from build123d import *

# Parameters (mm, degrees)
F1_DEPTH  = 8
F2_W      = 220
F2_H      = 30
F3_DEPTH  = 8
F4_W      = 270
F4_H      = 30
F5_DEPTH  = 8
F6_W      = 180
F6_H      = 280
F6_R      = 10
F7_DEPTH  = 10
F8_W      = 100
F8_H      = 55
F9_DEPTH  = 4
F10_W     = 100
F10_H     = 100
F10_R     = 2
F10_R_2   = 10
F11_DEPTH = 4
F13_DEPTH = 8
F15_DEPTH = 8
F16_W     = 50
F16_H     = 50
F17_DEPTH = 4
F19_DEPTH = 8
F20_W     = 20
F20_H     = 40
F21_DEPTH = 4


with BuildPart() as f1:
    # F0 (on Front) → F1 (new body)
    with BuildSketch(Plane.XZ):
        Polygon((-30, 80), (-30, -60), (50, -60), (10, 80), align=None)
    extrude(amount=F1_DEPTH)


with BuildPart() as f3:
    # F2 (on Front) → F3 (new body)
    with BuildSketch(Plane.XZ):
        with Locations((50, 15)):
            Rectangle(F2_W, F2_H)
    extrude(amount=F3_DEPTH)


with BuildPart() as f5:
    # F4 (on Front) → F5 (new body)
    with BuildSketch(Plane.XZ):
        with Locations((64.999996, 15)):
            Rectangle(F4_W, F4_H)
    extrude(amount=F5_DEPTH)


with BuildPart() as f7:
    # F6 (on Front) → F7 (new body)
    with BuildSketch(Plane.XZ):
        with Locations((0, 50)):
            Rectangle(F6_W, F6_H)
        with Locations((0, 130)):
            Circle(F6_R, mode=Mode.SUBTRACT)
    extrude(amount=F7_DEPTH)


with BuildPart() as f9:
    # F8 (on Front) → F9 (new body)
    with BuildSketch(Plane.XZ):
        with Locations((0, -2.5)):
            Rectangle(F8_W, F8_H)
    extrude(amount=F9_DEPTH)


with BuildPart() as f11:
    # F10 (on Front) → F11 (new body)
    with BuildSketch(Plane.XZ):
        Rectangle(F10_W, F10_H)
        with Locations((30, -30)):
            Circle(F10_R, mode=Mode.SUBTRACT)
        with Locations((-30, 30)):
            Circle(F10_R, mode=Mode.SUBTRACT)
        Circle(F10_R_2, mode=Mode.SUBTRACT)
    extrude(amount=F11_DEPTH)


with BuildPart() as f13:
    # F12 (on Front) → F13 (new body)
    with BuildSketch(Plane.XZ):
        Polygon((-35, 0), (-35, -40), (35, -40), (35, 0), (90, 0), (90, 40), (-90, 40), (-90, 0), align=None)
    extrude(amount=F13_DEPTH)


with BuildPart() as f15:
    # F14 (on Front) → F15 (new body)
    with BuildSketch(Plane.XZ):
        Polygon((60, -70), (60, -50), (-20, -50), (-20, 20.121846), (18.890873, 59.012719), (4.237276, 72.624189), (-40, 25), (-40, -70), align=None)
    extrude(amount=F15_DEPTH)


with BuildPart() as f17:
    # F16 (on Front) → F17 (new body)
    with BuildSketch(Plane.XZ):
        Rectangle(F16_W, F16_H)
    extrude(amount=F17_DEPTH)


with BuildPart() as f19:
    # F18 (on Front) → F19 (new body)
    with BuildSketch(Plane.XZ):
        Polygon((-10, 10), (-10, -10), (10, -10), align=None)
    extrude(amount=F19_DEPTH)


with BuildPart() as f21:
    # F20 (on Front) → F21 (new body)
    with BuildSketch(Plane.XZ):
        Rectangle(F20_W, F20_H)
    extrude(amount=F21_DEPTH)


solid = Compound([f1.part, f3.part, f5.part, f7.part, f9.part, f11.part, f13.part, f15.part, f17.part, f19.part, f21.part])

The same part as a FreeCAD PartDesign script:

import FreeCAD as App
import Part
import Sketcher

V = App.Vector
Q = App.Units.Quantity


def add_polygon(sketch, points):
    """Adds a closed chain of lines whose ends are joined by coincident constraints."""
    first, n = sketch.GeometryCount, len(points)
    for a, b in zip(points, points[1:] + points[:1]):
        sketch.addGeometry(Part.LineSegment(App.Vector(*a, 0), App.Vector(*b, 0)), False)
    for i in range(n):
        sketch.addConstraint(Sketcher.Constraint("Coincident", first + i, 2, first + (i + 1) % n, 1))

doc = App.newDocument("Part")
body = doc.addObject("PartDesign::Body", "Body")

# Sketch on XZ plane
sketch1 = body.newObject("Sketcher::SketchObject", "Sketch")
sketch1.AttachmentSupport = (doc.getObject("XZ_Plane"), [""])
sketch1.MapMode = "FlatFace"
add_polygon(sketch1, [(-30, 80), (-30, -60), (50, -60), (10, 80)])  # lines 0-3
sketch1.addConstraint(Sketcher.Constraint("Vertical", 0))
sketch1.addConstraint(Sketcher.Constraint("Horizontal", 1))
sketch1.addConstraint(Sketcher.Constraint("Horizontal", 3))
sketch1.addConstraint(Sketcher.Constraint("DistanceX", 1, 1, 1, 2, Q("80 mm")))
sketch1.addConstraint(Sketcher.Constraint("DistanceX", 3, 2, 3, 1, Q("40 mm")))
sketch1.addConstraint(Sketcher.Constraint("DistanceY", 0, 2, 0, 1, Q("140 mm")))
sketch1.addConstraint(Sketcher.Constraint("DistanceX", 0, 2, -1, 1, Q("30 mm")))
sketch1.addConstraint(Sketcher.Constraint("DistanceY", 0, 2, -1, 1, Q("60 mm")))
pad1 = body.newObject("PartDesign::Pad", "Pad")
pad1.Profile = sketch1
pad1.Length = 8
body2 = doc.addObject("PartDesign::Body", "Body001")

# Sketch on XZ plane
sketch2 = body2.newObject("Sketcher::SketchObject", "Sketch001")
sketch2.AttachmentSupport = (doc.getObject("XZ_Plane001"), [""])
sketch2.MapMode = "FlatFace"
add_polygon(sketch2, [(-60, 30), (-60, 0), (160, 0), (160, 30)])  # lines 0-3
sketch2.addConstraint(Sketcher.Constraint("Vertical", 0))
sketch2.addConstraint(Sketcher.Constraint("Horizontal", 1))
sketch2.addConstraint(Sketcher.Constraint("Vertical", 2))
sketch2.addConstraint(Sketcher.Constraint("Horizontal", 3))
sketch2.addConstraint(Sketcher.Constraint("PointOnObject", 0, 2, -1))
sketch2.addConstraint(Sketcher.Constraint("DistanceX", 1, 1, 1, 2, Q("220 mm")))
sketch2.addConstraint(Sketcher.Constraint("DistanceY", 0, 2, 0, 1, Q("30 mm")))
sketch2.addConstraint(Sketcher.Constraint("DistanceX", 0, 2, -1, 1, Q("60 mm")))
pad2 = body2.newObject("PartDesign::Pad", "Pad001")
pad2.Profile = sketch2
pad2.Length = 8
body3 = doc.addObject("PartDesign::Body", "Body002")

# Sketch on XZ plane
sketch3 = body3.newObject("Sketcher::SketchObject", "Sketch002")
sketch3.AttachmentSupport = (doc.getObject("XZ_Plane002"), [""])
sketch3.MapMode = "FlatFace"
add_polygon(sketch3, [(-70.000004, 30), (-70.000004, 0), (199.999996, 0), (199.999996, 30)])  # lines 0-3
sketch3.addConstraint(Sketcher.Constraint("Vertical", 0))
sketch3.addConstraint(Sketcher.Constraint("Horizontal", 1))
sketch3.addConstraint(Sketcher.Constraint("Vertical", 2))
sketch3.addConstraint(Sketcher.Constraint("Horizontal", 3))
sketch3.addConstraint(Sketcher.Constraint("PointOnObject", 0, 2, -1))
sketch3.addConstraint(Sketcher.Constraint("DistanceX", 1, 1, 1, 2, Q("270 mm")))
sketch3.addConstraint(Sketcher.Constraint("DistanceY", 0, 2, 0, 1, Q("30 mm")))
sketch3.addConstraint(Sketcher.Constraint("DistanceX", 0, 2, -1, 1, Q("70.000004 mm")))
pad3 = body3.newObject("PartDesign::Pad", "Pad002")
pad3.Profile = sketch3
pad3.Length = 8
body4 = doc.addObject("PartDesign::Body", "Body003")

# Sketch on XZ plane
sketch4 = body4.newObject("Sketcher::SketchObject", "Sketch003")
sketch4.AttachmentSupport = (doc.getObject("XZ_Plane003"), [""])
sketch4.MapMode = "FlatFace"
add_polygon(sketch4, [(-90, 190), (-90, -90), (90, -90), (90, 190)])  # lines 0-3
sketch4.addGeometry(Part.Circle(V(0, 130, 0), V(0, 0, 1), 10), False)  # 4
sketch4.addConstraint(Sketcher.Constraint("Vertical", 0))
sketch4.addConstraint(Sketcher.Constraint("Horizontal", 1))
sketch4.addConstraint(Sketcher.Constraint("Vertical", 2))
sketch4.addConstraint(Sketcher.Constraint("Horizontal", 3))
sketch4.addConstraint(Sketcher.Constraint("PointOnObject", 4, 3, -2))
sketch4.addConstraint(Sketcher.Constraint("Diameter", 4, Q("20 mm")))
sketch4.addConstraint(Sketcher.Constraint("DistanceX", 1, 1, 1, 2, Q("180 mm")))
sketch4.addConstraint(Sketcher.Constraint("DistanceY", 0, 2, 0, 1, Q("280 mm")))
sketch4.addConstraint(Sketcher.Constraint("DistanceY", -1, 1, 4, 3, Q("130 mm")))
sketch4.addConstraint(Sketcher.Constraint("DistanceX", 0, 2, -1, 1, Q("90 mm")))
sketch4.addConstraint(Sketcher.Constraint("DistanceY", 0, 2, -1, 1, Q("90 mm")))
pad4 = body4.newObject("PartDesign::Pad", "Pad003")
pad4.Profile = sketch4
pad4.Length = 10
body5 = doc.addObject("PartDesign::Body", "Body004")

# Sketch on XZ plane
sketch5 = body5.newObject("Sketcher::SketchObject", "Sketch004")
sketch5.AttachmentSupport = (doc.getObject("XZ_Plane004"), [""])
sketch5.MapMode = "FlatFace"
add_polygon(sketch5, [(-50, 25), (-50, -30), (50, -30), (50, 25)])  # lines 0-3
sketch5.addConstraint(Sketcher.Constraint("Vertical", 0))
sketch5.addConstraint(Sketcher.Constraint("Horizontal", 1))
sketch5.addConstraint(Sketcher.Constraint("Vertical", 2))
sketch5.addConstraint(Sketcher.Constraint("Horizontal", 3))
sketch5.addConstraint(Sketcher.Constraint("DistanceX", 1, 1, 1, 2, Q("100 mm")))
sketch5.addConstraint(Sketcher.Constraint("DistanceY", 0, 2, 0, 1, Q("55 mm")))
sketch5.addConstraint(Sketcher.Constraint("DistanceX", 0, 2, -1, 1, Q("50 mm")))
sketch5.addConstraint(Sketcher.Constraint("DistanceY", 0, 2, -1, 1, Q("30 mm")))
pad5 = body5.newObject("PartDesign::Pad", "Pad004")
pad5.Profile = sketch5
pad5.Length = 4
body6 = doc.addObject("PartDesign::Body", "Body005")

# Sketch on XZ plane
sketch6 = body6.newObject("Sketcher::SketchObject", "Sketch005")
sketch6.AttachmentSupport = (doc.getObject("XZ_Plane005"), [""])
sketch6.MapMode = "FlatFace"
add_polygon(sketch6, [(-50, 50), (-50, -50), (50, -50), (50, 50)])  # lines 0-3
sketch6.addGeometry(Part.Circle(V(30, -30, 0), V(0, 0, 1), 2), False)  # 4
sketch6.addGeometry(Part.Circle(V(-30, 30, 0), V(0, 0, 1), 2), False)  # 5
sketch6.addGeometry(Part.Circle(V(0, 0, 0), V(0, 0, 1), 10), False)  # 6
sketch6.addConstraint(Sketcher.Constraint("Vertical", 0))
sketch6.addConstraint(Sketcher.Constraint("Horizontal", 1))
sketch6.addConstraint(Sketcher.Constraint("Vertical", 2))
sketch6.addConstraint(Sketcher.Constraint("Horizontal", 3))
sketch6.addConstraint(Sketcher.Constraint("Coincident", 6, 3, -1, 1))
sketch6.addConstraint(Sketcher.Constraint("Equal", 4, 5))
sketch6.addConstraint(Sketcher.Constraint("Symmetric", 4, 3, 5, 3, -1, 1))
sketch6.addConstraint(Sketcher.Constraint("Symmetric", 0, 2, 2, 2, -1, 1))
sketch6.addConstraint(Sketcher.Constraint("Equal", 3, 0))
sketch6.addConstraint(Sketcher.Constraint("Diameter", 4, Q("4 mm")))
sketch6.addConstraint(Sketcher.Constraint("Diameter", 6, Q("20 mm")))
sketch6.addConstraint(Sketcher.Constraint("DistanceX", 1, 1, 1, 2, Q("100 mm")))
sketch6.addConstraint(Sketcher.Constraint("DistanceX", -1, 1, 4, 3, Q("30 mm")))
sketch6.addConstraint(Sketcher.Constraint("DistanceY", 4, 3, -1, 1, Q("30 mm")))
pad6 = body6.newObject("PartDesign::Pad", "Pad005")
pad6.Profile = sketch6
pad6.Length = 4
body7 = doc.addObject("PartDesign::Body", "Body006")

# Sketch on XZ plane
sketch7 = body7.newObject("Sketcher::SketchObject", "Sketch006")
sketch7.AttachmentSupport = (doc.getObject("XZ_Plane006"), [""])
sketch7.MapMode = "FlatFace"
add_polygon(sketch7, [(-35, 0), (-35, -40), (35, -40), (35, 0), (90, 0), (90, 40), (-90, 40), (-90, 0)])  # lines 0-7
sketch7.addConstraint(Sketcher.Constraint("Vertical", 0))
sketch7.addConstraint(Sketcher.Constraint("Horizontal", 1))
sketch7.addConstraint(Sketcher.Constraint("Vertical", 2))
sketch7.addConstraint(Sketcher.Constraint("Horizontal", 3))
sketch7.addConstraint(Sketcher.Constraint("Vertical", 4))
sketch7.addConstraint(Sketcher.Constraint("Horizontal", 5))
sketch7.addConstraint(Sketcher.Constraint("Vertical", 6))
sketch7.addConstraint(Sketcher.Constraint("Horizontal", 7))
sketch7.addConstraint(Sketcher.Constraint("Symmetric", 3, 2, 6, 2, -1, 1))
sketch7.addConstraint(Sketcher.Constraint("Symmetric", 2, 2, 7, 2, -2))
sketch7.addConstraint(Sketcher.Constraint("Equal", 2, 4))
sketch7.addConstraint(Sketcher.Constraint("DistanceX", 1, 1, 1, 2, Q("70 mm")))
sketch7.addConstraint(Sketcher.Constraint("DistanceX", 3, 1, 3, 2, Q("55 mm")))
sketch7.addConstraint(Sketcher.Constraint("DistanceY", 0, 2, 0, 1, Q("40 mm")))
pad7 = body7.newObject("PartDesign::Pad", "Pad006")
pad7.Profile = sketch7
pad7.Length = 8
body8 = doc.addObject("PartDesign::Body", "Body007")

# Sketch on XZ plane
sketch8 = body8.newObject("Sketcher::SketchObject", "Sketch007")
sketch8.AttachmentSupport = (doc.getObject("XZ_Plane007"), [""])
sketch8.MapMode = "FlatFace"
add_polygon(sketch8, [(60, -70), (60, -50), (-20, -50), (-20, 20.121846), (18.890873, 59.012719), (4.237276, 72.624189), (-40, 25), (-40, -70)])  # lines 0-7
sketch8.addConstraint(Sketcher.Constraint("Vertical", 0))
sketch8.addConstraint(Sketcher.Constraint("Horizontal", 1))
sketch8.addConstraint(Sketcher.Constraint("Vertical", 2))
sketch8.addConstraint(Sketcher.Constraint("Vertical", 6))
sketch8.addConstraint(Sketcher.Constraint("Horizontal", 7))
sketch8.addConstraint(Sketcher.Constraint("Perpendicular", 4, 5))
sketch8.addConstraint(Sketcher.Constraint("DistanceX", 1, 2, 1, 1, Q("80 mm")))
sketch8.addConstraint(Sketcher.Constraint("DistanceX", 7, 1, 7, 2, Q("100 mm")))
sketch8.addConstraint(Sketcher.Constraint("DistanceY", 0, 1, 0, 2, Q("20 mm")))
sketch8.addConstraint(Sketcher.Constraint("DistanceY", 6, 2, 6, 1, Q("95 mm")))
sketch8.addConstraint(Sketcher.Constraint("Angle", 3, Q("45 deg")))
sketch8.addConstraint(Sketcher.Constraint("Distance", 3, Q("55 mm")))
sketch8.addConstraint(Sketcher.Constraint("Distance", 4, Q("20.000001 mm")))
sketch8.addConstraint(Sketcher.Constraint("Distance", 5, Q("65 mm")))
sketch8.addConstraint(Sketcher.Constraint("DistanceX", -1, 1, 0, 2, Q("60 mm")))
sketch8.addConstraint(Sketcher.Constraint("DistanceY", 0, 2, -1, 1, Q("50 mm")))
pad8 = body8.newObject("PartDesign::Pad", "Pad007")
pad8.Profile = sketch8
pad8.Length = 8
body9 = doc.addObject("PartDesign::Body", "Body008")

# Sketch on XZ plane
sketch9 = body9.newObject("Sketcher::SketchObject", "Sketch008")
sketch9.AttachmentSupport = (doc.getObject("XZ_Plane008"), [""])
sketch9.MapMode = "FlatFace"
add_polygon(sketch9, [(-25, 25), (-25, -25), (25, -25), (25, 25)])  # lines 0-3
sketch9.addConstraint(Sketcher.Constraint("Vertical", 0))
sketch9.addConstraint(Sketcher.Constraint("Horizontal", 1))
sketch9.addConstraint(Sketcher.Constraint("Vertical", 2))
sketch9.addConstraint(Sketcher.Constraint("Horizontal", 3))
sketch9.addConstraint(Sketcher.Constraint("Symmetric", 0, 2, 2, 2, -1, 1))
sketch9.addConstraint(Sketcher.Constraint("Equal", 3, 0))
sketch9.addConstraint(Sketcher.Constraint("DistanceX", 1, 1, 1, 2, Q("50 mm")))
pad9 = body9.newObject("PartDesign::Pad", "Pad008")
pad9.Profile = sketch9
pad9.Length = 4
body10 = doc.addObject("PartDesign::Body", "Body009")

# Sketch on XZ plane
sketch10 = body10.newObject("Sketcher::SketchObject", "Sketch009")
sketch10.AttachmentSupport = (doc.getObject("XZ_Plane009"), [""])
sketch10.MapMode = "FlatFace"
add_polygon(sketch10, [(-10, 10), (-10, -10), (10, -10)])  # lines 0-2
sketch10.addConstraint(Sketcher.Constraint("Vertical", 0))
sketch10.addConstraint(Sketcher.Constraint("Horizontal", 1))
sketch10.addConstraint(Sketcher.Constraint("Symmetric", 1, 2, 2, 2, -1, 1))
sketch10.addConstraint(Sketcher.Constraint("Equal", 1, 0))
sketch10.addConstraint(Sketcher.Constraint("DistanceX", 1, 1, 1, 2, Q("20 mm")))
pad10 = body10.newObject("PartDesign::Pad", "Pad009")
pad10.Profile = sketch10
pad10.Length = 8
body11 = doc.addObject("PartDesign::Body", "Body010")

# Sketch on XZ plane
sketch11 = body11.newObject("Sketcher::SketchObject", "Sketch010")
sketch11.AttachmentSupport = (doc.getObject("XZ_Plane010"), [""])
sketch11.MapMode = "FlatFace"
add_polygon(sketch11, [(-10, 20), (-10, -20), (10, -20), (10, 20)])  # lines 0-3
sketch11.addConstraint(Sketcher.Constraint("Vertical", 0))
sketch11.addConstraint(Sketcher.Constraint("Horizontal", 1))
sketch11.addConstraint(Sketcher.Constraint("Vertical", 2))
sketch11.addConstraint(Sketcher.Constraint("Horizontal", 3))
sketch11.addConstraint(Sketcher.Constraint("Symmetric", 0, 2, 2, 2, -1, 1))
sketch11.addConstraint(Sketcher.Constraint("DistanceX", 1, 1, 1, 2, Q("20 mm")))
sketch11.addConstraint(Sketcher.Constraint("DistanceY", 0, 2, 0, 1, Q("40 mm")))
pad11 = body11.newObject("PartDesign::Pad", "Pad010")
pad11.Profile = sketch11
pad11.Length = 4

doc.recompute()
